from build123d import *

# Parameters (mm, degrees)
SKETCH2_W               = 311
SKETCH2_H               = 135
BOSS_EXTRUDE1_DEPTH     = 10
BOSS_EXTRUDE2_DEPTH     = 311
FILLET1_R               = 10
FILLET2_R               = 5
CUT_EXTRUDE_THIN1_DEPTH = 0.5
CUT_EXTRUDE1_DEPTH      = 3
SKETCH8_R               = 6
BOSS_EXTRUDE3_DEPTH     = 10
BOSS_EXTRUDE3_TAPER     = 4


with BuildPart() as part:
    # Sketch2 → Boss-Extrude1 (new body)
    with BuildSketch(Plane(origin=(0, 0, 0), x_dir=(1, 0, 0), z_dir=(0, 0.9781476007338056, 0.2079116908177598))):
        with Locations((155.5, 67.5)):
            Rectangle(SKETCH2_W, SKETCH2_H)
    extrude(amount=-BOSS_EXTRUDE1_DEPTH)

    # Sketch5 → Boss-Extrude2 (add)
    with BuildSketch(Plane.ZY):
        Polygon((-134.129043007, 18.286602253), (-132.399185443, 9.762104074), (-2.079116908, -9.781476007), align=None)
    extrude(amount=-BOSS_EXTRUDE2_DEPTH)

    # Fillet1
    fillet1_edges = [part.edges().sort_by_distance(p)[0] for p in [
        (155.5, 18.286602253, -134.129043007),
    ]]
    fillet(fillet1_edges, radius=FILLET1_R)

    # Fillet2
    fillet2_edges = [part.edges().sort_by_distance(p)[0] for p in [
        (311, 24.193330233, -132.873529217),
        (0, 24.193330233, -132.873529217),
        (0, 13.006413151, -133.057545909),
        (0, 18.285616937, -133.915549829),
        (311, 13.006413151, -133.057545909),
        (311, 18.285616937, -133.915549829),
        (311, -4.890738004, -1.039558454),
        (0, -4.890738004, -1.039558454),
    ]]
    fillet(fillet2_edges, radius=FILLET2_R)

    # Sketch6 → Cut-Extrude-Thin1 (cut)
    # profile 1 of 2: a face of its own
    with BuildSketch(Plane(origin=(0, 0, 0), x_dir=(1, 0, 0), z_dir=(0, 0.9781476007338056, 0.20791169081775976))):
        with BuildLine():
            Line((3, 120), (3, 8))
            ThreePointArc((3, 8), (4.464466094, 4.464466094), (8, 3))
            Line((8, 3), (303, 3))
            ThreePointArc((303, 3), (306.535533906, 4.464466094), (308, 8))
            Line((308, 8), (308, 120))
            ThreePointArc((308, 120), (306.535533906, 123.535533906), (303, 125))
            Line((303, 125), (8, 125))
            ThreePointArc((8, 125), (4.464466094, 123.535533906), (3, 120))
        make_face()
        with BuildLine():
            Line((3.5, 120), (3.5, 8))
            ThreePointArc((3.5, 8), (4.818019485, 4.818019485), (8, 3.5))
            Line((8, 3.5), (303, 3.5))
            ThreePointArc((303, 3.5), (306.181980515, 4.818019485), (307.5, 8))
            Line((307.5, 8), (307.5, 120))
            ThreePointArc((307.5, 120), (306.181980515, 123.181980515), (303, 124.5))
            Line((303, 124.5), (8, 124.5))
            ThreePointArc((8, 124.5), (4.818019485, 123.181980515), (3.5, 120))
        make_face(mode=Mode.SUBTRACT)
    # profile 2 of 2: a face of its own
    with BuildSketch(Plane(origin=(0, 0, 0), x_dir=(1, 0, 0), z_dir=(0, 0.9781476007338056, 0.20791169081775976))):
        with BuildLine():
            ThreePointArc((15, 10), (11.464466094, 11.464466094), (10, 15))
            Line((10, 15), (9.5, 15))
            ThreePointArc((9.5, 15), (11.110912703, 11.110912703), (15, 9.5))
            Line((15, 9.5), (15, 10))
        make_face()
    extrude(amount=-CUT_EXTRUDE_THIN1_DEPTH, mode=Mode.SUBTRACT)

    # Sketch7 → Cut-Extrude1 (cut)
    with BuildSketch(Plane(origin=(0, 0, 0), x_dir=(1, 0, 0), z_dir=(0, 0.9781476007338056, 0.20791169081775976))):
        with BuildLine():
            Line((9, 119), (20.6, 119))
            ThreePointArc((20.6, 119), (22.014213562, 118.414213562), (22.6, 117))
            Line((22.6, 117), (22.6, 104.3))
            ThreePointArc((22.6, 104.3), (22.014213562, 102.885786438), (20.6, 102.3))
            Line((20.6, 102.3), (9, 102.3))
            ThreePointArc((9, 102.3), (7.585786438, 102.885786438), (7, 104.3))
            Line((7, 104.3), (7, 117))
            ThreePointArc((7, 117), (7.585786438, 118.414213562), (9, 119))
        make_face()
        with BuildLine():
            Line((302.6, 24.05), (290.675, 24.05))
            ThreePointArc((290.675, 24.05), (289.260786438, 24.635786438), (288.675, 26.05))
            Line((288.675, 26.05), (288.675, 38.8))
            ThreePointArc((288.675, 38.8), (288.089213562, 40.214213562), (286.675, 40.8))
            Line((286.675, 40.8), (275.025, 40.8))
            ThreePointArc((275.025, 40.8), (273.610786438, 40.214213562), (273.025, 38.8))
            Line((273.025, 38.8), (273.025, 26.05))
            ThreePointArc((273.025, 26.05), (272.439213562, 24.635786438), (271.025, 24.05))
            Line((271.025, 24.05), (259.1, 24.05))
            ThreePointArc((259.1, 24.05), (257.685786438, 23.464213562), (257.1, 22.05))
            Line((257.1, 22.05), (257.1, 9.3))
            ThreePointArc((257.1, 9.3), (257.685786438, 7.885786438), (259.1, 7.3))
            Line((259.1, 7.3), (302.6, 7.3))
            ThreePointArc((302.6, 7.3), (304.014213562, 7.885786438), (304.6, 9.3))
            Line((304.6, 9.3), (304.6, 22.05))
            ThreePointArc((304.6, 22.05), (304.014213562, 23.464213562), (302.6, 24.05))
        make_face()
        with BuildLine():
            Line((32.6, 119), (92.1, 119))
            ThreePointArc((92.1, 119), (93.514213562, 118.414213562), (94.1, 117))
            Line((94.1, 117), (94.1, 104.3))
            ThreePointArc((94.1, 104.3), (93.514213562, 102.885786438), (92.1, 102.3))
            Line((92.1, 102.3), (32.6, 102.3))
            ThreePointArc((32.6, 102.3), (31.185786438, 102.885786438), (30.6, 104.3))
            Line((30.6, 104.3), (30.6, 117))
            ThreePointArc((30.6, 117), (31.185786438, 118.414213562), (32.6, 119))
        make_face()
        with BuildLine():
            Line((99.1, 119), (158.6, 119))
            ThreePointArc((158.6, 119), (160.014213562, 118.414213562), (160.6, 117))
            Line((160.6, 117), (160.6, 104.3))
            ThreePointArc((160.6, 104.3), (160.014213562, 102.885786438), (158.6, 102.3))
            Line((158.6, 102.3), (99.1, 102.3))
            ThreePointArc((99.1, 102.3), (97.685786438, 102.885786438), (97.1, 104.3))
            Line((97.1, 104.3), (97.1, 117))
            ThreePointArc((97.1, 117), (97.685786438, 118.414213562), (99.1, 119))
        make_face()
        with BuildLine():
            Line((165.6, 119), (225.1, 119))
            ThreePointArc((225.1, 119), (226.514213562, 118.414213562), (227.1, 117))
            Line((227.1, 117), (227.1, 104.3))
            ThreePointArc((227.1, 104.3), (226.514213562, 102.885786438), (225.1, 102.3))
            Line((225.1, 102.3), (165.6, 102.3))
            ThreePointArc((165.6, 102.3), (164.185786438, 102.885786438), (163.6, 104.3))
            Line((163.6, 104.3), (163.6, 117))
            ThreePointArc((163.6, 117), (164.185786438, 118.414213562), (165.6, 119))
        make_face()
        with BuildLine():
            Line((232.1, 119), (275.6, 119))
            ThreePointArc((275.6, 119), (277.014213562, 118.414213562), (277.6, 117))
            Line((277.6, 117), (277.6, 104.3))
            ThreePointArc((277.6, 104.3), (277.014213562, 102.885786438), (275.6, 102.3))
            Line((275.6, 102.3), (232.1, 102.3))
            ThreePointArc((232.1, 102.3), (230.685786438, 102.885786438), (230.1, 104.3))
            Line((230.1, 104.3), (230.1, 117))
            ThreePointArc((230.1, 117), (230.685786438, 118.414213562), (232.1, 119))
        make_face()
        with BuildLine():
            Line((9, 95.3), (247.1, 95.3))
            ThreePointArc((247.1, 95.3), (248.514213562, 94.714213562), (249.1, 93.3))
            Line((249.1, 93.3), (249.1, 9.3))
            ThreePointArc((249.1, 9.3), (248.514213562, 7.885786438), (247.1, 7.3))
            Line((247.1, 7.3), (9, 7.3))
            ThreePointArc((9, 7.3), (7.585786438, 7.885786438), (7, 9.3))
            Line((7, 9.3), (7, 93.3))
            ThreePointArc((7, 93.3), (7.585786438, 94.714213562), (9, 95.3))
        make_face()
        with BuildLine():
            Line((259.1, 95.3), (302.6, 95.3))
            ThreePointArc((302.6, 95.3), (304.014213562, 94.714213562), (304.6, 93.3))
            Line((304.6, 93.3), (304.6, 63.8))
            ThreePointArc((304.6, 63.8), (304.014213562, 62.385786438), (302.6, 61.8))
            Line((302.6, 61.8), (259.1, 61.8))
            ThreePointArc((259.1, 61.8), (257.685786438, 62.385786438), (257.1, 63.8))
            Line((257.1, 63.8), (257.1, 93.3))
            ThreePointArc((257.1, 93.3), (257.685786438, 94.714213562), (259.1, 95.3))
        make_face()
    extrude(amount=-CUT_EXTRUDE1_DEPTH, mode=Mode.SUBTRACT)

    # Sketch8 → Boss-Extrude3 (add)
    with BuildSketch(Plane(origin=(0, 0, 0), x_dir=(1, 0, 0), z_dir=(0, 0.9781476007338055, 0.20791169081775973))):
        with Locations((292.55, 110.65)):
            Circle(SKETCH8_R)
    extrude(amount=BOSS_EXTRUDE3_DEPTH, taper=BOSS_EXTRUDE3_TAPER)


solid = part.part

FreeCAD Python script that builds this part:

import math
import FreeCAD as App
import Part
import Sketcher

V = App.Vector
Q = App.Units.Quantity


def edges_at(feature, points):
    """Names of the edges that pass closest to the given points."""
    edges = feature.Shape.Edges
    near = lambda p: min(range(len(edges)), key=lambda i: edges[i].distToShape(Part.Vertex(*p))[0])
    return sorted({f"Edge{near(p) + 1}" for p in points})

doc = App.newDocument("Part")
body = doc.addObject("PartDesign::Body", "Body")

# Sketch on an angled plane
sketch1 = body.newObject("Sketcher::SketchObject", "Sketch")
sketch1.Placement = App.Placement(V(0, 0, 0), App.Rotation(V(1, 0, 0), V(0, 0.207911691, -0.978147601), V(0, 0.978147601, 0.207911691), "ZXY"))
sketch1.addGeometry([
    Part.LineSegment(V(0, 135, 0), V(0, 0, 0)),
    Part.LineSegment(V(0, 0, 0), V(311, 0, 0)),
    Part.LineSegment(V(311, 0, 0), V(311, 135, 0)),
    Part.LineSegment(V(311, 135, 0), V(0, 135, 0)),
], False)
sketch1.addConstraint([
    Sketcher.Constraint("Coincident", 0, 2, 1, 1),
    Sketcher.Constraint("Coincident", 1, 2, 2, 1),
    Sketcher.Constraint("Coincident", 2, 2, 3, 1),
    Sketcher.Constraint("Coincident", 3, 2, 0, 1),
    Sketcher.Constraint("Vertical", 0),
    Sketcher.Constraint("Horizontal", 1),
    Sketcher.Constraint("Vertical", 2),
    Sketcher.Constraint("Horizontal", 3),
    Sketcher.Constraint("Coincident", 0, 2, -1, 1),
    Sketcher.Constraint("DistanceX", 1, 1, 1, 2, 311.0),
    Sketcher.Constraint("DistanceY", 0, 2, 0, 1, 135.0),
])
pad1 = body.newObject("PartDesign::Pad", "Pad")
pad1.Profile = sketch1
pad1.Length = 10
pad1.Reversed = True

# Sketch on YZ plane
sketch2 = body.newObject("Sketcher::SketchObject", "Sketch001")
sketch2.AttachmentSupport = (doc.getObject("YZ_Plane"), [""])
sketch2.MapMode = "FlatFace"
sketch2.addGeometry([
    Part.LineSegment(V(18.286602, -134.129043, 0), V(9.762104, -132.399185, 0)),
    Part.LineSegment(V(9.762104, -132.399185, 0), V(-9.781476, -2.079117, 0)),
    Part.LineSegment(V(-9.781476, -2.079117, 0), V(18.286602, -134.129043, 0)),
], False)
sketch2.addConstraint([
    Sketcher.Constraint("Coincident", 0, 2, 1, 1),
    Sketcher.Constraint("Coincident", 1, 2, 2, 1),
    Sketcher.Constraint("Coincident", 2, 2, 0, 1),
    Sketcher.Constraint("Angle", 2, Q("-78 deg")),
    Sketcher.Constraint("Distance", 2, 135.0),
    Sketcher.Constraint("DistanceX", 0, 2, 2, 2, 8.524498),
    Sketcher.Constraint("DistanceY", 0, 2, 1, 2, 130.320069),
    Sketcher.Constraint("DistanceX", -1, 1, 0, 2, 9.762104),
    Sketcher.Constraint("DistanceY", 0, 2, -1, 1, 132.399185),
])
pad2 = body.newObject("PartDesign::Pad", "Pad001")
pad2.Profile = sketch2
pad2.Length = 311
doc.recompute()

fillet = body.newObject("PartDesign::Fillet", "Fillet")
fillet.Base = (pad2, edges_at(pad2, [(155.5, 18.287, -134.129)]))
fillet.Radius = 10
doc.recompute()

fillet2 = body.newObject("PartDesign::Fillet", "Fillet001")
fillet2.Base = (fillet, edges_at(fillet, [
    (311, 24.193, -132.874),
    (0, 24.193, -132.874),
    (0, 13.006, -133.058),
    (0, 18.286, -133.916),
    (311, 13.006, -133.058),
    (311, 18.286, -133.916),
    (311, -4.891, -1.04),
    (0, -4.891, -1.04),
]))
fillet2.Radius = 5

# Sketch on an angled plane
sketch3 = body.newObject("Sketcher::SketchObject", "Sketch002")
sketch3.Placement = App.Placement(V(0, 0, 0), App.Rotation(V(1, 0, 0), V(0, 0.207911691, -0.978147601), V(0, 0.978147601, 0.207911691), "ZXY"))
sketch3.addGeometry([
    Part.LineSegment(V(3, 120, 0), V(3, 8, 0)),  # 0
    Part.ArcOfCircle(Part.Circle(V(8, 8, 0), V(0, 0, 1), 5), math.radians(180), math.radians(270)),  # 1
    Part.LineSegment(V(8, 3, 0), V(303, 3, 0)),  # 2
    Part.ArcOfCircle(Part.Circle(V(303, 8, 0), V(0, 0, 1), 5), math.radians(-90), math.radians(0)),  # 3
    Part.LineSegment(V(308, 8, 0), V(308, 120, 0)),  # 4
    Part.ArcOfCircle(Part.Circle(V(303, 120, 0), V(0, 0, 1), 5), math.radians(0), math.radians(90)),  # 5
    Part.LineSegment(V(303, 125, 0), V(8, 125, 0)),  # 6
    Part.ArcOfCircle(Part.Circle(V(8, 120, 0), V(0, 0, 1), 5), math.radians(90), math.radians(180)),  # 7
    Part.LineSegment(V(3.5, 8, 0), V(3.5, 120, 0)),  # 8
    Part.ArcOfCircle(Part.Circle(V(8, 120, 0), V(0, 0, 1), 4.5), math.radians(90), math.radians(180)),  # 9
    Part.LineSegment(V(8, 124.5, 0), V(303, 124.5, 0)),  # 10
    Part.ArcOfCircle(Part.Circle(V(303, 120, 0), V(0, 0, 1), 4.5), math.radians(0), math.radians(90)),  # 11
    Part.LineSegment(V(307.5, 120, 0), V(307.5, 8, 0)),  # 12
    Part.ArcOfCircle(Part.Circle(V(303, 8, 0), V(0, 0, 1), 4.5), math.radians(-90), math.radians(0)),  # 13
    Part.LineSegment(V(303, 3.5, 0), V(8, 3.5, 0)),  # 14
    Part.ArcOfCircle(Part.Circle(V(8, 8, 0), V(0, 0, 1), 4.5), math.radians(-180), math.radians(-90)),  # 15
    Part.ArcOfCircle(Part.Circle(V(15, 15, 0), V(0, 0, 1), 5), math.radians(180), math.radians(270)),  # 16
    Part.LineSegment(V(10, 15, 0), V(9.5, 15, 0)),  # 17
    Part.ArcOfCircle(Part.Circle(V(15, 15, 0), V(0, 0, 1), 5.5), math.radians(180), math.radians(270)),  # 18
    Part.LineSegment(V(15, 9.5, 0), V(15, 10, 0)),  # 19
], False)
sketch3.addConstraint([
    Sketcher.Constraint("Tangent", 0, 2, 1, 1),
    Sketcher.Constraint("Tangent", 1, 2, 2, 1),
    Sketcher.Constraint("Tangent", 2, 2, 3, 1),
    Sketcher.Constraint("Tangent", 3, 2, 4, 1),
    Sketcher.Constraint("Tangent", 4, 2, 5, 1),
    Sketcher.Constraint("Tangent", 5, 2, 6, 1),
    Sketcher.Constraint("Tangent", 6, 2, 7, 1),
    Sketcher.Constraint("Tangent", 7, 2, 0, 1),
    Sketcher.Constraint("Tangent", 8, 2, 9, 2),
    Sketcher.Constraint("Tangent", 9, 1, 10, 1),
    Sketcher.Constraint("Tangent", 10, 2, 11, 2),
    Sketcher.Constraint("Tangent", 11, 1, 12, 1),
    Sketcher.Constraint("Tangent", 12, 2, 13, 2),
    Sketcher.Constraint("Tangent", 13, 1, 14, 1),
    Sketcher.Constraint("Tangent", 14, 2, 15, 2),
    Sketcher.Constraint("Tangent", 15, 1, 8, 1),
    Sketcher.Constraint("Coincident", 16, 1, 17, 1),
    Sketcher.Constraint("Coincident", 17, 2, 18, 1),
    Sketcher.Constraint("Coincident", 18, 2, 19, 1),
    Sketcher.Constraint("Coincident", 19, 2, 16, 2),
    Sketcher.Constraint("Vertical", 0),
    Sketcher.Constraint("Horizontal", 2),
    Sketcher.Constraint("Vertical", 4),
    Sketcher.Constraint("Horizontal", 6),
    Sketcher.Constraint("Vertical", 8),
    Sketcher.Constraint("Horizontal", 10),
    Sketcher.Constraint("Vertical", 12),
    Sketcher.Constraint("Horizontal", 14),
    Sketcher.Constraint("Horizontal", 17),
    Sketcher.Constraint("Vertical", 19),
    Sketcher.Constraint("Coincident", 9, 3, 7, 3),
    Sketcher.Constraint("Coincident", 11, 3, 5, 3),
    Sketcher.Constraint("Coincident", 13, 3, 3, 3),
    Sketcher.Constraint("Coincident", 18, 3, 16, 3),
    Sketcher.Constraint("Equal", 1, 3),
    Sketcher.Constraint("Equal", 3, 5),
    Sketcher.Constraint("Equal", 5, 7),
    Sketcher.Constraint("Equal", 13, 15),
    Sketcher.Constraint("Equal", 7, 16),
    Sketcher.Constraint("Horizontal", 18, 3, 16, 1),
    Sketcher.Constraint("Vertical", 16, 3, 18, 2),
    Sketcher.Constraint("Radius", 1, 5.0),
    Sketcher.Constraint("Radius", 9, 4.5),
    Sketcher.Constraint("Radius", 18, 5.5),
    Sketcher.Constraint("DistanceX", 2, 1, 2, 2, 295.0),
    Sketcher.Constraint("DistanceY", 0, 2, 0, 1, 112.0),
    Sketcher.Constraint("DistanceX", -1, 1, 1, 3, 8.0),
    Sketcher.Constraint("DistanceY", -1, 1, 1, 3, 8.0),
    Sketcher.Constraint("DistanceX", -1, 1, 16, 3, 15.0),
    Sketcher.Constraint("DistanceY", -1, 1, 16, 3, 15.0),
])
pocket1 = body.newObject("PartDesign::Pocket", "Pocket")
pocket1.Profile = sketch3
pocket1.Length = 0.5

# Sketch on an angled plane
sketch4 = body.newObject("Sketcher::SketchObject", "Sketch003")
sketch4.Placement = App.Placement(V(0, 0, 0), App.Rotation(V(1, 0, 0), V(0, 0.207911691, -0.978147601), V(0, 0.978147601, 0.207911691), "ZXY"))
sketch4.addGeometry([
    Part.LineSegment(V(20.6, 119, 0), V(9, 119, 0)),  # 0
    Part.ArcOfCircle(Part.Circle(V(9, 117, 0), V(0, 0, 1), 2), math.radians(90), math.radians(180)),  # 1
    Part.LineSegment(V(7, 117, 0), V(7, 104.3, 0)),  # 2
    Part.ArcOfCircle(Part.Circle(V(9, 104.3, 0), V(0, 0, 1), 2), math.radians(-180), math.radians(-90)),  # 3
    Part.LineSegment(V(9, 102.3, 0), V(20.6, 102.3, 0)),  # 4
    Part.ArcOfCircle(Part.Circle(V(20.6, 104.3, 0), V(0, 0, 1), 2), math.radians(-90), math.radians(0)),  # 5
    Part.LineSegment(V(22.6, 104.3, 0), V(22.6, 117, 0)),  # 6
    Part.ArcOfCircle(Part.Circle(V(20.6, 117, 0), V(0, 0, 1), 2), math.radians(0), math.radians(90)),  # 7
    Part.LineSegment(V(302.6, 24.05, 0), V(290.675, 24.05, 0)),  # 8
    Part.ArcOfCircle(Part.Circle(V(290.675, 26.05, 0), V(0, 0, 1), 2), math.radians(-180), math.radians(-90)),  # 9
    Part.LineSegment(V(288.675, 26.05, 0), V(288.675, 38.8, 0)),  # 10
    Part.ArcOfCircle(Part.Circle(V(286.675, 38.8, 0), V(0, 0, 1), 2), math.radians(0), math.radians(90)),  # 11
    Part.LineSegment(V(286.675, 40.8, 0), V(275.025, 40.8, 0)),  # 12
    Part.ArcOfCircle(Part.Circle(V(275.025, 38.8, 0), V(0, 0, 1), 2), math.radians(90), math.radians(180)),  # 13
    Part.LineSegment(V(273.025, 38.8, 0), V(273.025, 26.05, 0)),  # 14
    Part.ArcOfCircle(Part.Circle(V(271.025, 26.05, 0), V(0, 0, 1), 2), math.radians(-90), math.radians(0)),  # 15
    Part.LineSegment(V(271.025, 24.05, 0), V(259.1, 24.05, 0)),  # 16
    Part.ArcOfCircle(Part.Circle(V(259.1, 22.05, 0), V(0, 0, 1), 2), math.radians(90), math.radians(180)),  # 17
    Part.LineSegment(V(257.1, 22.05, 0), V(257.1, 9.3, 0)),  # 18
    Part.ArcOfCircle(Part.Circle(V(259.1, 9.3, 0), V(0, 0, 1), 2), math.radians(-180), math.radians(-90)),  # 19
    Part.LineSegment(V(259.1, 7.3, 0), V(302.6, 7.3, 0)),  # 20
    Part.ArcOfCircle(Part.Circle(V(302.6, 9.3, 0), V(0, 0, 1), 2), math.radians(-90), math.radians(0)),  # 21
    Part.LineSegment(V(304.6, 9.3, 0), V(304.6, 22.05, 0)),  # 22
    Part.ArcOfCircle(Part.Circle(V(302.6, 22.05, 0), V(0, 0, 1), 2), math.radians(0), math.radians(90)),  # 23
    Part.LineSegment(V(92.1, 119, 0), V(32.6, 119, 0)),  # 24
    Part.ArcOfCircle(Part.Circle(V(32.6, 117, 0), V(0, 0, 1), 2), math.radians(90), math.radians(180)),  # 25
    Part.LineSegment(V(30.6, 117, 0), V(30.6, 104.3, 0)),  # 26
    Part.ArcOfCircle(Part.Circle(V(32.6, 104.3, 0), V(0, 0, 1), 2), math.radians(-180), math.radians(-90)),  # 27
    Part.LineSegment(V(32.6, 102.3, 0), V(92.1, 102.3, 0)),  # 28
    Part.ArcOfCircle(Part.Circle(V(92.1, 104.3, 0), V(0, 0, 1), 2), math.radians(-90), math.radians(0)),  # 29
    Part.LineSegment(V(94.1, 104.3, 0), V(94.1, 117, 0)),  # 30
    Part.ArcOfCircle(Part.Circle(V(92.1, 117, 0), V(0, 0, 1), 2), math.radians(0), math.radians(90)),  # 31
    Part.LineSegment(V(158.6, 119, 0), V(99.1, 119, 0)),  # 32
    Part.ArcOfCircle(Part.Circle(V(99.1, 117, 0), V(0, 0, 1), 2), math.radians(90), math.radians(180)),  # 33
    Part.LineSegment(V(97.1, 117, 0), V(97.1, 104.3, 0)),  # 34
    Part.ArcOfCircle(Part.Circle(V(99.1, 104.3, 0), V(0, 0, 1), 2), math.radians(-180), math.radians(-90)),  # 35
    Part.LineSegment(V(99.1, 102.3, 0), V(158.6, 102.3, 0)),  # 36
    Part.ArcOfCircle(Part.Circle(V(158.6, 104.3, 0), V(0, 0, 1), 2), math.radians(-90), math.radians(0)),  # 37
    Part.LineSegment(V(160.6, 104.3, 0), V(160.6, 117, 0)),  # 38
    Part.ArcOfCircle(Part.Circle(V(158.6, 117, 0), V(0, 0, 1), 2), math.radians(0), math.radians(90)),  # 39
    Part.LineSegment(V(225.1, 119, 0), V(165.6, 119, 0)),  # 40
    Part.ArcOfCircle(Part.Circle(V(165.6, 117, 0), V(0, 0, 1), 2), math.radians(90), math.radians(180)),  # 41
    Part.LineSegment(V(163.6, 117, 0), V(163.6, 104.3, 0)),  # 42
    Part.ArcOfCircle(Part.Circle(V(165.6, 104.3, 0), V(0, 0, 1), 2), math.radians(-180), math.radians(-90)),  # 43
    Part.LineSegment(V(165.6, 102.3, 0), V(225.1, 102.3, 0)),  # 44
    Part.ArcOfCircle(Part.Circle(V(225.1, 104.3, 0), V(0, 0, 1), 2), math.radians(-90), math.radians(0)),  # 45
    Part.LineSegment(V(227.1, 104.3, 0), V(227.1, 117, 0)),  # 46
    Part.ArcOfCircle(Part.Circle(V(225.1, 117, 0), V(0, 0, 1), 2), math.radians(0), math.radians(90)),  # 47
    Part.LineSegment(V(275.6, 119, 0), V(232.1, 119, 0)),  # 48
    Part.ArcOfCircle(Part.Circle(V(232.1, 117, 0), V(0, 0, 1), 2), math.radians(90), math.radians(180)),  # 49
    Part.LineSegment(V(230.1, 117, 0), V(230.1, 104.3, 0)),  # 50
    Part.ArcOfCircle(Part.Circle(V(232.1, 104.3, 0), V(0, 0, 1), 2), math.radians(-180), math.radians(-90)),  # 51
    Part.LineSegment(V(232.1, 102.3, 0), V(275.6, 102.3, 0)),  # 52
    Part.ArcOfCircle(Part.Circle(V(275.6, 104.3, 0), V(0, 0, 1), 2), math.radians(-90), math.radians(0)),  # 53
    Part.LineSegment(V(277.6, 104.3, 0), V(277.6, 117, 0)),  # 54
    Part.ArcOfCircle(Part.Circle(V(275.6, 117, 0), V(0, 0, 1), 2), math.radians(0), math.radians(90)),  # 55
    Part.LineSegment(V(247.1, 95.3, 0), V(9, 95.3, 0)),  # 56
    Part.ArcOfCircle(Part.Circle(V(9, 93.3, 0), V(0, 0, 1), 2), math.radians(90), math.radians(180)),  # 57
    Part.LineSegment(V(7, 93.3, 0), V(7, 9.3, 0)),  # 58
    Part.ArcOfCircle(Part.Circle(V(9, 9.3, 0), V(0, 0, 1), 2), math.radians(-180), math.radians(-90)),  # 59
    Part.LineSegment(V(9, 7.3, 0), V(247.1, 7.3, 0)),  # 60
    Part.ArcOfCircle(Part.Circle(V(247.1, 9.3, 0), V(0, 0, 1), 2), math.radians(-90), math.radians(0)),  # 61
    Part.LineSegment(V(249.1, 9.3, 0), V(249.1, 93.3, 0)),  # 62
    Part.ArcOfCircle(Part.Circle(V(247.1, 93.3, 0), V(0, 0, 1), 2), math.radians(0), math.radians(90)),  # 63
    Part.LineSegment(V(302.6, 95.3, 0), V(259.1, 95.3, 0)),  # 64
    Part.ArcOfCircle(Part.Circle(V(259.1, 93.3, 0), V(0, 0, 1), 2), math.radians(90), math.radians(180)),  # 65
    Part.LineSegment(V(257.1, 93.3, 0), V(257.1, 63.8, 0)),  # 66
    Part.ArcOfCircle(Part.Circle(V(259.1, 63.8, 0), V(0, 0, 1), 2), math.radians(-180), math.radians(-90)),  # 67
    Part.LineSegment(V(259.1, 61.8, 0), V(302.6, 61.8, 0)),  # 68
    Part.ArcOfCircle(Part.Circle(V(302.6, 63.8, 0), V(0, 0, 1), 2), math.radians(-90), math.radians(0)),  # 69
    Part.LineSegment(V(304.6, 63.8, 0), V(304.6, 93.3, 0)),  # 70
    Part.ArcOfCircle(Part.Circle(V(302.6, 93.3, 0), V(0, 0, 1), 2), math.radians(0), math.radians(90)),  # 71
], False)
sketch4.addConstraint([
    Sketcher.Constraint("Tangent", 0, 2, 1, 1),
    Sketcher.Constraint("Tangent", 1, 2, 2, 1),
    Sketcher.Constraint("Tangent", 2, 2, 3, 1),
    Sketcher.Constraint("Tangent", 3, 2, 4, 1),
    Sketcher.Constraint("Tangent", 4, 2, 5, 1),
    Sketcher.Constraint("Tangent", 5, 2, 6, 1),
    Sketcher.Constraint("Tangent", 6, 2, 7, 1),
    Sketcher.Constraint("Tangent", 7, 2, 0, 1),
    Sketcher.Constraint("Tangent", 8, 2, 9, 2),
    Sketcher.Constraint("Tangent", 9, 1, 10, 1),
    Sketcher.Constraint("Tangent", 10, 2, 11, 1),
    Sketcher.Constraint("Tangent", 11, 2, 12, 1),
    Sketcher.Constraint("Tangent", 12, 2, 13, 1),
    Sketcher.Constraint("Tangent", 13, 2, 14, 1),
    Sketcher.Constraint("Tangent", 14, 2, 15, 2),
    Sketcher.Constraint("Tangent", 15, 1, 16, 1),
    Sketcher.Constraint("Tangent", 16, 2, 17, 1),
    Sketcher.Constraint("Tangent", 17, 2, 18, 1),
    Sketcher.Constraint("Tangent", 18, 2, 19, 1),
    Sketcher.Constraint("Tangent", 19, 2, 20, 1),
    Sketcher.Constraint("Tangent", 20, 2, 21, 1),
    Sketcher.Constraint("Tangent", 21, 2, 22, 1),
    Sketcher.Constraint("Tangent", 22, 2, 23, 1),
    Sketcher.Constraint("Tangent", 23, 2, 8, 1),
    Sketcher.Constraint("Tangent", 24, 2, 25, 1),
    Sketcher.Constraint("Tangent", 25, 2, 26, 1),
    Sketcher.Constraint("Tangent", 26, 2, 27, 1),
    Sketcher.Constraint("Tangent", 27, 2, 28, 1),
    Sketcher.Constraint("Tangent", 28, 2, 29, 1),
    Sketcher.Constraint("Tangent", 29, 2, 30, 1),
    Sketcher.Constraint("Tangent", 30, 2, 31, 1),
    Sketcher.Constraint("Tangent", 31, 2, 24, 1),
    Sketcher.Constraint("Tangent", 32, 2, 33, 1),
    Sketcher.Constraint("Tangent", 33, 2, 34, 1),
    Sketcher.Constraint("Tangent", 34, 2, 35, 1),
    Sketcher.Constraint("Tangent", 35, 2, 36, 1),
    Sketcher.Constraint("Tangent", 36, 2, 37, 1),
    Sketcher.Constraint("Tangent", 37, 2, 38, 1),
    Sketcher.Constraint("Tangent", 38, 2, 39, 1),
    Sketcher.Constraint("Tangent", 39, 2, 32, 1),
    Sketcher.Constraint("Tangent", 40, 2, 41, 1),
    Sketcher.Constraint("Tangent", 41, 2, 42, 1),
    Sketcher.Constraint("Tangent", 42, 2, 43, 1),
    Sketcher.Constraint("Tangent", 43, 2, 44, 1),
    Sketcher.Constraint("Tangent", 44, 2, 45, 1),
    Sketcher.Constraint("Tangent", 45, 2, 46, 1),
    Sketcher.Constraint("Tangent", 46, 2, 47, 1),
    Sketcher.Constraint("Tangent", 47, 2, 40, 1),
    Sketcher.Constraint("Tangent", 48, 2, 49, 1),
    Sketcher.Constraint("Tangent", 49, 2, 50, 1),
    Sketcher.Constraint("Tangent", 50, 2, 51, 1),
    Sketcher.Constraint("Tangent", 51, 2, 52, 1),
    Sketcher.Constraint("Tangent", 52, 2, 53, 1),
    Sketcher.Constraint("Tangent", 53, 2, 54, 1),
    Sketcher.Constraint("Tangent", 54, 2, 55, 1),
    Sketcher.Constraint("Tangent", 55, 2, 48, 1),
    Sketcher.Constraint("Tangent", 56, 2, 57, 1),
    Sketcher.Constraint("Tangent", 57, 2, 58, 1),
    Sketcher.Constraint("Tangent", 58, 2, 59, 1),
    Sketcher.Constraint("Tangent", 59, 2, 60, 1),
    Sketcher.Constraint("Tangent", 60, 2, 61, 1),
    Sketcher.Constraint("Tangent", 61, 2, 62, 1),
    Sketcher.Constraint("Tangent", 62, 2, 63, 1),
    Sketcher.Constraint("Tangent", 63, 2, 56, 1),
    Sketcher.Constraint("Tangent", 64, 2, 65, 1),
    Sketcher.Constraint("Tangent", 65, 2, 66, 1),
    Sketcher.Constraint("Tangent", 66, 2, 67, 1),
    Sketcher.Constraint("Tangent", 67, 2, 68, 1),
    Sketcher.Constraint("Tangent", 68, 2, 69, 1),
    Sketcher.Constraint("Tangent", 69, 2, 70, 1),
    Sketcher.Constraint("Tangent", 70, 2, 71, 1),
    Sketcher.Constraint("Tangent", 71, 2, 64, 1),
    Sketcher.Constraint("Horizontal", 0),
    Sketcher.Constraint("Vertical", 2),
    Sketcher.Constraint("Horizontal", 4),
    Sketcher.Constraint("Vertical", 6),
    Sketcher.Constraint("Horizontal", 8),
    Sketcher.Constraint("Vertical", 10),
    Sketcher.Constraint("Horizontal", 12),
    Sketcher.Constraint("Vertical", 14),
    Sketcher.Constraint("Horizontal", 16),
    Sketcher.Constraint("Vertical", 18),
    Sketcher.Constraint("Horizontal", 20),
    Sketcher.Constraint("Vertical", 22),
    Sketcher.Constraint("Horizontal", 24),
    Sketcher.Constraint("Vertical", 26),
    Sketcher.Constraint("Horizontal", 28),
    Sketcher.Constraint("Vertical", 30),
    Sketcher.Constraint("Horizontal", 32),
    Sketcher.Constraint("Vertical", 34),
    Sketcher.Constraint("Horizontal", 36),
    Sketcher.Constraint("Vertical", 38),
    Sketcher.Constraint("Horizontal", 40),
    Sketcher.Constraint("Vertical", 42),
    Sketcher.Constraint("Horizontal", 44),
    Sketcher.Constraint("Vertical", 46),
    Sketcher.Constraint("Horizontal", 48),
    Sketcher.Constraint("Vertical", 50),
    Sketcher.Constraint("Horizontal", 52),
    Sketcher.Constraint("Vertical", 54),
    Sketcher.Constraint("Horizontal", 56),
    Sketcher.Constraint("Vertical", 58),
    Sketcher.Constraint("Horizontal", 60),
    Sketcher.Constraint("Vertical", 62),
    Sketcher.Constraint("Horizontal", 64),
    Sketcher.Constraint("Vertical", 66),
    Sketcher.Constraint("Horizontal", 68),
    Sketcher.Constraint("Vertical", 70),
    Sketcher.Constraint("Equal", 1, 3),
    Sketcher.Constraint("Equal", 3, 5),
    Sketcher.Constraint("Equal", 5, 7),
    Sketcher.Constraint("Equal", 7, 9),
    Sketcher.Constraint("Equal", 9, 11),
    Sketcher.Constraint("Equal", 11, 13),
    Sketcher.Constraint("Equal", 13, 15),
    Sketcher.Constraint("Equal", 15, 17),
    Sketcher.Constraint("Equal", 17, 19),
    Sketcher.Constraint("Equal", 19, 21),
    Sketcher.Constraint("Equal", 21, 23),
    Sketcher.Constraint("Equal", 23, 25),
    Sketcher.Constraint("Equal", 25, 27),
    Sketcher.Constraint("Equal", 27, 29),
    Sketcher.Constraint("Equal", 29, 31),
    Sketcher.Constraint("Equal", 31, 33),
    Sketcher.Constraint("Equal", 33, 35),
    Sketcher.Constraint("Equal", 35, 37),
    Sketcher.Constraint("Equal", 37, 39),
    Sketcher.Constraint("Equal", 39, 41),
    Sketcher.Constraint("Equal", 41, 43),
    Sketcher.Constraint("Equal", 43, 45),
    Sketcher.Constraint("Equal", 45, 47),
    Sketcher.Constraint("Equal", 47, 49),
    Sketcher.Constraint("Equal", 49, 51),
    Sketcher.Constraint("Equal", 51, 53),
    Sketcher.Constraint("Equal", 53, 55),
    Sketcher.Constraint("Equal", 55, 57),
    Sketcher.Constraint("Equal", 57, 59),
    Sketcher.Constraint("Equal", 59, 61),
    Sketcher.Constraint("Equal", 61, 63),
    Sketcher.Constraint("Equal", 63, 65),
    Sketcher.Constraint("Equal", 65, 67),
    Sketcher.Constraint("Equal", 67, 69),
    Sketcher.Constraint("Equal", 69, 71),
    Sketcher.Constraint("Horizontal", 9, 3, 15, 3),
    Sketcher.Constraint("Horizontal", 7, 3, 25, 3),
    Sketcher.Constraint("Horizontal", 5, 3, 27, 3),
    Sketcher.Constraint("Horizontal", 31, 3, 33, 3),
    Sketcher.Constraint("Horizontal", 29, 3, 35, 3),
    Sketcher.Constraint("Horizontal", 39, 3, 41, 3),
    Sketcher.Constraint("Horizontal", 37, 3, 43, 3),
    Sketcher.Constraint("Horizontal", 47, 3, 49, 3),
    Sketcher.Constraint("Horizontal", 45, 3, 51, 3),
    Sketcher.Constraint("Horizontal", 21, 3, 59, 3),
    Sketcher.Constraint("Horizontal", 63, 3, 65, 3),
    Sketcher.Constraint("Vertical", 3, 3, 57, 3),
    Sketcher.Constraint("Vertical", 19, 3, 65, 3),
    Sketcher.Constraint("Vertical", 23, 3, 69, 3),
    Sketcher.Constraint("Equal", 8, 16),
    Sketcher.Constraint("Equal", 28, 32),
    Sketcher.Constraint("Equal", 36, 40),
    Sketcher.Constraint("Equal", 20, 48),
    Sketcher.Constraint("Equal", 14, 18),
    Sketcher.Constraint("Radius", 1, 2.0),
    Sketcher.Constraint("DistanceY", 58, 2, 58, 1, 84.0),
    Sketcher.Constraint("DistanceX", 0, 2, 0, 1, 11.6),
    Sketcher.Constraint("DistanceX", 20, 1, 20, 2, 43.5),
    Sketcher.Constraint("DistanceX", 24, 2, 24, 1, 59.5),
    Sketcher.Constraint("DistanceX", 56, 2, 56, 1, 238.1),
    Sketcher.Constraint("DistanceY", 2, 2, 2, 1, 12.7),
    Sketcher.Constraint("DistanceY", 66, 2, 66, 1, 29.5),
    Sketcher.Constraint("DistanceX", -1, 1, 1, 3, 9.0),
    Sketcher.Constraint("DistanceY", -1, 1, 1, 3, 117.0),
    Sketcher.Constraint("DistanceX", 12, 2, 12, 1, 11.65),
    Sketcher.Constraint("DistanceY", 10, 1, 10, 2, 12.75),
    Sketcher.Constraint("DistanceY", -1, 1, 11, 3, 38.8),
    Sketcher.Constraint("DistanceX", -1, 1, 17, 3, 259.1),
    Sketcher.Constraint("DistanceX", -1, 1, 25, 3, 32.6),
    Sketcher.Constraint("DistanceX", -1, 1, 33, 3, 99.1),
    Sketcher.Constraint("DistanceX", -1, 1, 41, 3, 165.6),
    Sketcher.Constraint("DistanceX", -1, 1, 49, 3, 232.1),
])
pocket2 = body.newObject("PartDesign::Pocket", "Pocket001")
pocket2.Profile = sketch4
pocket2.Length = 3

# Sketch on an angled plane
sketch5 = body.newObject("Sketcher::SketchObject", "Sketch004")
sketch5.Placement = App.Placement(V(0, 0, 0), App.Rotation(V(1, 0, 0), V(0, 0.207911691, -0.978147601), V(0, 0.978147601, 0.207911691), "ZXY"))
sketch5.addGeometry(Part.Circle(V(292.55, 110.65, 0), V(0, 0, 1), 6), False)
sketch5.addConstraint([
    Sketcher.Constraint("Diameter", 0, 12.0),
    Sketcher.Constraint("DistanceX", -1, 1, 0, 3, 292.55),
    Sketcher.Constraint("DistanceY", -1, 1, 0, 3, 110.65),
])
pad3 = body.newObject("PartDesign::Pad", "Pad002")
pad3.Profile = sketch5
pad3.Length = 10
pad3.TaperAngle = -4

doc.recompute()
